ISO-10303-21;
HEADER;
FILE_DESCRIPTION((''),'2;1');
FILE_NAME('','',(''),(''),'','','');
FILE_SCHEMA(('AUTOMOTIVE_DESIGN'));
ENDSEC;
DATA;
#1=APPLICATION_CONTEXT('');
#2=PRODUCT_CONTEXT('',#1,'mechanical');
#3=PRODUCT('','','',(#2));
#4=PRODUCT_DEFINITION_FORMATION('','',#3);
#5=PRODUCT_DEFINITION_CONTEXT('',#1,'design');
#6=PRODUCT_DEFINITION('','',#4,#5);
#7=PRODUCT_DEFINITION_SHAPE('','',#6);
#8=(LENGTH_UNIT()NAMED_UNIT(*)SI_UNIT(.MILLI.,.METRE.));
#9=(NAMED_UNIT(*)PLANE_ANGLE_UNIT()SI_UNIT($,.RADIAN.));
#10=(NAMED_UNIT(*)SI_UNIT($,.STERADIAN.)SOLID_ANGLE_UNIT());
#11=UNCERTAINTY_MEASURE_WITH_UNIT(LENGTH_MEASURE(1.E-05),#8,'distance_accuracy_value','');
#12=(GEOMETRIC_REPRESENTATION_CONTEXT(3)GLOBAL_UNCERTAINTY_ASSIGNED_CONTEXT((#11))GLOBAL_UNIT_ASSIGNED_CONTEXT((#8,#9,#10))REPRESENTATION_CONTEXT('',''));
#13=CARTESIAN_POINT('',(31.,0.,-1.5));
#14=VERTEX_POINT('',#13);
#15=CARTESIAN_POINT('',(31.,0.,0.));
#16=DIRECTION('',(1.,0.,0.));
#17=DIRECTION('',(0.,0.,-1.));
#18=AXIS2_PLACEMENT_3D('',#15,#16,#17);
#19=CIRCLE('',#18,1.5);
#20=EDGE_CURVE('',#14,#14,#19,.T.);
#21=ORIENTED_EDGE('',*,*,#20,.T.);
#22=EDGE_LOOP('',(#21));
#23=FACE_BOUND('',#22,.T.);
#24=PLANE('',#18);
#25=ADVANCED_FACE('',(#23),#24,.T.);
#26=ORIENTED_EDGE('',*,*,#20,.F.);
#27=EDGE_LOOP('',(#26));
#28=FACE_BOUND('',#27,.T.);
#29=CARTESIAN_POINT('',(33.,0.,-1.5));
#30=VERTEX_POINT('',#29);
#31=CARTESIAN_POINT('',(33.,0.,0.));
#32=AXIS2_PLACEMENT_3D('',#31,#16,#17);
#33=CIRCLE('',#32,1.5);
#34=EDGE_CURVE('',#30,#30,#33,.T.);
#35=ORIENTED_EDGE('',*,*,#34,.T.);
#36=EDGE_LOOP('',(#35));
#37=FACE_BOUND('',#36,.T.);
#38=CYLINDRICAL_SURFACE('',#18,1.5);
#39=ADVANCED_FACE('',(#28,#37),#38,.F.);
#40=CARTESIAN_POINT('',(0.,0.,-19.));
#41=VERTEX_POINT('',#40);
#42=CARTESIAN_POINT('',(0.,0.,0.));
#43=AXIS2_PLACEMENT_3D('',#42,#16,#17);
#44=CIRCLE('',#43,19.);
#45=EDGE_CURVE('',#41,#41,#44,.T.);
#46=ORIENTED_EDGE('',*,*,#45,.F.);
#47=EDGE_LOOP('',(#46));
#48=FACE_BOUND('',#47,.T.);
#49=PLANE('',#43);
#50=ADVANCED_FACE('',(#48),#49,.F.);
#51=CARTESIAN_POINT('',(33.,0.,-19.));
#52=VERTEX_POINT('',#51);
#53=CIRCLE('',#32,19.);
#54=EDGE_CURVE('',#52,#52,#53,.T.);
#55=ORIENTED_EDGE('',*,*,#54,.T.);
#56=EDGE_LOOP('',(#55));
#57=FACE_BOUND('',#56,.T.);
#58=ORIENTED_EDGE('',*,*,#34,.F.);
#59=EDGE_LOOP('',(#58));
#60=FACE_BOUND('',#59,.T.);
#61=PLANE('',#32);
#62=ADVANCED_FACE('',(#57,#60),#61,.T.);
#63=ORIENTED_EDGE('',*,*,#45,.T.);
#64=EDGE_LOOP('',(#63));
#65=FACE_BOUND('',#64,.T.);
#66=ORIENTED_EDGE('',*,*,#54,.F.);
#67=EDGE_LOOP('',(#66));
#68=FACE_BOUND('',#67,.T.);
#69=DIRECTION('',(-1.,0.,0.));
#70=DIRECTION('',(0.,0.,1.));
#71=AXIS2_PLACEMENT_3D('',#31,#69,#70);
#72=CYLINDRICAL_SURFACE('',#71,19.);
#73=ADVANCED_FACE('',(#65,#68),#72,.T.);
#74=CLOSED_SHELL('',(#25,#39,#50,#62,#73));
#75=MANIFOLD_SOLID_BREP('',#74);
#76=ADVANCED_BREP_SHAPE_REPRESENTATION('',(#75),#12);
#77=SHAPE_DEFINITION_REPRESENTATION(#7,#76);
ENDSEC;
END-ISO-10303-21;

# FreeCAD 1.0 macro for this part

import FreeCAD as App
import Part
import Sketcher

V = App.Vector
Q = App.Units.Quantity

doc = App.newDocument("Part")
body = doc.addObject("PartDesign::Body", "Body")

sketch1 = body.newObject("Sketcher::SketchObject", "Sketch")
sketch1.AttachmentSupport = (doc.getObject("YZ_Plane"), [""])
sketch1.MapMode = "FlatFace"
sketch1.addGeometry(Part.Circle(V(0, 0, 0), V(0, 0, 1), 19), False)
sketch1.addConstraint([
    Sketcher.Constraint("Coincident", 0, 3, -1, 1),
    Sketcher.Constraint("Diameter", 0, Q("38 mm")),
])
pad1 = body.newObject("PartDesign::Pad", "Pad")
pad1.Profile = sketch1
pad1.Length = 33

sketch2 = body.newObject("Sketcher::SketchObject", "Sketch001")
sketch2.AttachmentSupport = (doc.getObject("YZ_Plane"), [""])
sketch2.MapMode = "FlatFace"
sketch2.AttachmentOffset = App.Placement(V(0, 0, 33), App.Rotation())
sketch2.addGeometry(Part.Circle(V(0, 0, 0), V(0, 0, 1), 1.5), False)
sketch2.addConstraint([
    Sketcher.Constraint("Coincident", 0, 3, -1, 1),
    Sketcher.Constraint("Diameter", 0, Q("3 mm")),
])
pocket1 = body.newObject("PartDesign::Pocket", "Pocket")
pocket1.Profile = sketch2
pocket1.Length = 2

doc.recompute()
